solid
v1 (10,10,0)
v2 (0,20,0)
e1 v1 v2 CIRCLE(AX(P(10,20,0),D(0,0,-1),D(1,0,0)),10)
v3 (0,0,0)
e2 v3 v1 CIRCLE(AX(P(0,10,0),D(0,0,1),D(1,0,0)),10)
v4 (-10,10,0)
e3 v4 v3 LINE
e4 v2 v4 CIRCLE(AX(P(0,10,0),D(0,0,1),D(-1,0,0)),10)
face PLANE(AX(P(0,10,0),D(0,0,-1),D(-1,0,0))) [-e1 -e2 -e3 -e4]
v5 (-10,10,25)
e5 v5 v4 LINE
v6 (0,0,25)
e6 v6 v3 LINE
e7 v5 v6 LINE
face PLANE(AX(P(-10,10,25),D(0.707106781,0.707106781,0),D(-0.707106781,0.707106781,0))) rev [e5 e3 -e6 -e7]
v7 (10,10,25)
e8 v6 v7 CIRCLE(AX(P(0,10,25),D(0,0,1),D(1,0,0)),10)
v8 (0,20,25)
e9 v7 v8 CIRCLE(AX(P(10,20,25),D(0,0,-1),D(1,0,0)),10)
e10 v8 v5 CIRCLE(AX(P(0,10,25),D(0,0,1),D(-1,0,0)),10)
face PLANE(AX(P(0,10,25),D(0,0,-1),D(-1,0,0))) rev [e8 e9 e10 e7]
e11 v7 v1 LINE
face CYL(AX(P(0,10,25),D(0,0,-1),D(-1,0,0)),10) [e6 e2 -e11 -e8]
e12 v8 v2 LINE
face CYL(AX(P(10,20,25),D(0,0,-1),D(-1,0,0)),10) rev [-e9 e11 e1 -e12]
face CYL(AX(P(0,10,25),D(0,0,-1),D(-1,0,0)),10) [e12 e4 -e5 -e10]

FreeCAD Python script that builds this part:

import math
import FreeCAD as App
import Part
import Sketcher
from FreeCAD import Vector
Q = App.Units.Quantity

doc = App.newDocument("Part")
body = doc.addObject("PartDesign::Body", "Body")

sketch1 = body.newObject("Sketcher::SketchObject", "Sketch")
sketch1.AttachmentSupport = (doc.getObject("XY_Plane"), [""])
sketch1.MapMode = "FlatFace"
sketch1.addGeometry([
    Part.LineSegment(Vector(-10, 10, 0), Vector(0, 0, 0)),
    Part.ArcOfCircle(Part.Circle(Vector(0, 10, 0), Vector(0, 0, 1), 10), math.radians(-90), math.radians(0)),
    Part.ArcOfCircle(Part.Circle(Vector(10, 20, 0), Vector(0, 0, 1), 10), math.radians(180), math.radians(270)),
    Part.ArcOfCircle(Part.Circle(Vector(0, 10, 0), Vector(0, 0, 1), 10), math.radians(90), math.radians(180)),
], False)
sketch1.addConstraint([
    Sketcher.Constraint("Coincident", 0, 2, 1, 1),
    Sketcher.Constraint("Coincident", 1, 2, 2, 2),
    Sketcher.Constraint("Coincident", 2, 1, 3, 1),
    Sketcher.Constraint("Coincident", 3, 2, 0, 1),
    Sketcher.Constraint("Coincident", 0, 2, -1, 1),
    Sketcher.Constraint("Coincident", 3, 3, 1, 3),
    Sketcher.Constraint("Equal", 1, 2),
    Sketcher.Constraint("Equal", 2, 3),
    Sketcher.Constraint("Symmetric", 1, 2, 3, 2, -2),
    Sketcher.Constraint("PointOnObject", 2, 1, -2),
    Sketcher.Constraint("Horizontal", 3, 3, 1, 2),
    Sketcher.Constraint("Radius", 1, Q("10 mm")),
])
pad1 = body.newObject("PartDesign::Pad", "Pad")
pad1.Profile = sketch1
pad1.Length = 25

doc.recompute()
